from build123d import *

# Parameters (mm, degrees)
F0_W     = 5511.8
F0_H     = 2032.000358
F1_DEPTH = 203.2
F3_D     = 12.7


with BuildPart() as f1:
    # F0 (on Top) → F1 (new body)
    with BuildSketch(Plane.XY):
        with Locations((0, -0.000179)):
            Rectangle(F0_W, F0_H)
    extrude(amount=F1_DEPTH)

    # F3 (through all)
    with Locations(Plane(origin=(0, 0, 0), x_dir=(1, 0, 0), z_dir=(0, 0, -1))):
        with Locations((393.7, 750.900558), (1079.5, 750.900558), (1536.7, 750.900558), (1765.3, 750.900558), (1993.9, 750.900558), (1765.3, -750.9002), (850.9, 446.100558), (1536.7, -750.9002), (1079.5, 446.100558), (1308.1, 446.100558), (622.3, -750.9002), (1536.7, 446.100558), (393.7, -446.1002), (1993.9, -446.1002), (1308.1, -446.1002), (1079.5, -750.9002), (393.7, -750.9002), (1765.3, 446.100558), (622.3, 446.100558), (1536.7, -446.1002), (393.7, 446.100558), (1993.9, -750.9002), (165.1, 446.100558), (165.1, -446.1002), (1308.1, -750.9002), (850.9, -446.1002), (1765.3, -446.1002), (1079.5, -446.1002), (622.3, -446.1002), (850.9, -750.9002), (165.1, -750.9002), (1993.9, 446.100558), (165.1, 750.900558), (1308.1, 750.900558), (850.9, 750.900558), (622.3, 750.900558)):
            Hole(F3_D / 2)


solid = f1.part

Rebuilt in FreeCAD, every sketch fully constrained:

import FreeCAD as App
import Part
import Sketcher
Q = App.Units.Quantity


def add_polygon(sketch, points):
    """Adds a closed chain of lines whose ends are joined by coincident constraints."""
    first, n = sketch.GeometryCount, len(points)
    for a, b in zip(points, points[1:] + points[:1]):
        sketch.addGeometry(Part.LineSegment(App.Vector(*a, 0), App.Vector(*b, 0)), False)
    for i in range(n):
        sketch.addConstraint(Sketcher.Constraint("Coincident", first + i, 2, first + (i + 1) % n, 1))

doc = App.newDocument("Part")
body = doc.addObject("PartDesign::Body", "Body")

sketch1 = body.newObject("Sketcher::SketchObject", "Sketch")
sketch1.AttachmentSupport = (doc.getObject("XY_Plane"), [""])
sketch1.MapMode = "FlatFace"
add_polygon(sketch1, [(-2756, 1016), (-2756, -1016), (2756, -1016), (2756, 1016)])
sketch1.addConstraint([
    Sketcher.Constraint("Vertical", 0),
    Sketcher.Constraint("Horizontal", 1),
    Sketcher.Constraint("Vertical", 2),
    Sketcher.Constraint("Horizontal", 3),
    Sketcher.Constraint("DistanceX", 1, 1, 1, 2, Q("217 in")),
    Sketcher.Constraint("DistanceY", -1, 1, 2, 2, Q("40 in")),
    Sketcher.Constraint("DistanceX", 0, 2, -1, 1, Q("108.5 in")),
    Sketcher.Constraint("DistanceY", 0, 2, 0, 1, 2032.000358),
])
pad1 = body.newObject("PartDesign::Pad", "Pad")
pad1.Profile = sketch1
pad1.Length = Q("8 in")

sketch2 = body.newObject("Sketcher::SketchObject", "Sketch001")
sketch2.AttachmentSupport = (doc.getObject("XY_Plane"), [""])
sketch2.MapMode = "FlatFace"
sketch2.addGeometry([
    Part.Circle(App.Vector(394, -751, 0), App.Vector(0, 0, 1), 6),
    Part.Circle(App.Vector(1080, -751, 0), App.Vector(0, 0, 1), 6),
    Part.Circle(App.Vector(1537, -751, 0), App.Vector(0, 0, 1), 6),
    Part.Circle(App.Vector(1765, -751, 0), App.Vector(0, 0, 1), 6),
    Part.Circle(App.Vector(1994, -751, 0), App.Vector(0, 0, 1), 6),
    Part.Circle(App.Vector(1765, 751, 0), App.Vector(0, 0, 1), 6),
    Part.Circle(App.Vector(851, -446, 0), App.Vector(0, 0, 1), 6),
    Part.Circle(App.Vector(1537, 751, 0), App.Vector(0, 0, 1), 6),
    Part.Circle(App.Vector(1080, -446, 0), App.Vector(0, 0, 1), 6),
    Part.Circle(App.Vector(1308, -446, 0), App.Vector(0, 0, 1), 6),
    Part.Circle(App.Vector(622, 751, 0), App.Vector(0, 0, 1), 6),
    Part.Circle(App.Vector(1537, -446, 0), App.Vector(0, 0, 1), 6),
    Part.Circle(App.Vector(394, 446, 0), App.Vector(0, 0, 1), 6),
    Part.Circle(App.Vector(1994, 446, 0), App.Vector(0, 0, 1), 6),
    Part.Circle(App.Vector(1308, 446, 0), App.Vector(0, 0, 1), 6),
    Part.Circle(App.Vector(1080, 751, 0), App.Vector(0, 0, 1), 6),
    Part.Circle(App.Vector(394, 751, 0), App.Vector(0, 0, 1), 6),
    Part.Circle(App.Vector(1765, -446, 0), App.Vector(0, 0, 1), 6),
    Part.Circle(App.Vector(622, -446, 0), App.Vector(0, 0, 1), 6),
    Part.Circle(App.Vector(1537, 446, 0), App.Vector(0, 0, 1), 6),
    Part.Circle(App.Vector(394, -446, 0), App.Vector(0, 0, 1), 6),
    Part.Circle(App.Vector(1994, 751, 0), App.Vector(0, 0, 1), 6),
    Part.Circle(App.Vector(165, -446, 0), App.Vector(0, 0, 1), 6),
    Part.Circle(App.Vector(165, 446, 0), App.Vector(0, 0, 1), 6),
    Part.Circle(App.Vector(1308, 751, 0), App.Vector(0, 0, 1), 6),
    Part.Circle(App.Vector(851, 446, 0), App.Vector(0, 0, 1), 6),
    Part.Circle(App.Vector(1765, 446, 0), App.Vector(0, 0, 1), 6),
    Part.Circle(App.Vector(1080, 446, 0), App.Vector(0, 0, 1), 6),
    Part.Circle(App.Vector(622, 446, 0), App.Vector(0, 0, 1), 6),
    Part.Circle(App.Vector(851, 751, 0), App.Vector(0, 0, 1), 6),
    Part.Circle(App.Vector(165, 751, 0), App.Vector(0, 0, 1), 6),
    Part.Circle(App.Vector(1994, -446, 0), App.Vector(0, 0, 1), 6),
    Part.Circle(App.Vector(165, -751, 0), App.Vector(0, 0, 1), 6),
    Part.Circle(App.Vector(1308, -751, 0), App.Vector(0, 0, 1), 6),
    Part.Circle(App.Vector(851, -751, 0), App.Vector(0, 0, 1), 6),
    Part.Circle(App.Vector(622, -751, 0), App.Vector(0, 0, 1), 6),
], False)
sketch2.addConstraint([
    Sketcher.Constraint("Equal", 0, 1),
    Sketcher.Constraint("Equal", 1, 2),
    Sketcher.Constraint("Equal", 2, 3),
    Sketcher.Constraint("Equal", 3, 4),
    Sketcher.Constraint("Equal", 4, 5),
    Sketcher.Constraint("Equal", 5, 6),
    Sketcher.Constraint("Equal", 6, 7),
    Sketcher.Constraint("Equal", 7, 8),
    Sketcher.Constraint("Equal", 8, 9),
    Sketcher.Constraint("Equal", 9, 10),
    Sketcher.Constraint("Equal", 10, 11),
    Sketcher.Constraint("Equal", 11, 12),
    Sketcher.Constraint("Equal", 12, 13),
    Sketcher.Constraint("Equal", 13, 14),
    Sketcher.Constraint("Equal", 14, 15),
    Sketcher.Constraint("Equal", 15, 16),
    Sketcher.Constraint("Equal", 16, 17),
    Sketcher.Constraint("Equal", 17, 18),
    Sketcher.Constraint("Equal", 18, 19),
    Sketcher.Constraint("Equal", 19, 20),
    Sketcher.Constraint("Equal", 20, 21),
    Sketcher.Constraint("Equal", 21, 22),
    Sketcher.Constraint("Equal", 22, 23),
    Sketcher.Constraint("Equal", 23, 24),
    Sketcher.Constraint("Equal", 24, 25),
    Sketcher.Constraint("Equal", 25, 26),
    Sketcher.Constraint("Equal", 26, 27),
    Sketcher.Constraint("Equal", 27, 28),
    Sketcher.Constraint("Equal", 28, 29),
    Sketcher.Constraint("Equal", 29, 30),
    Sketcher.Constraint("Equal", 30, 31),
    Sketcher.Constraint("Equal", 31, 32),
    Sketcher.Constraint("Equal", 32, 33),
    Sketcher.Constraint("Equal", 33, 34),
    Sketcher.Constraint("Equal", 34, 35),
    Sketcher.Constraint("Horizontal", 0, 3, 1, 3),
    Sketcher.Constraint("Horizontal", 1, 3, 2, 3),
    Sketcher.Constraint("Horizontal", 2, 3, 3, 3),
    Sketcher.Constraint("Horizontal", 3, 3, 4, 3),
    Sketcher.Constraint("Horizontal", 5, 3, 7, 3),
    Sketcher.Constraint("Horizontal", 6, 3, 8, 3),
    Sketcher.Constraint("Horizontal", 8, 3, 9, 3),
    Sketcher.Constraint("Horizontal", 7, 3, 10, 3),
    Sketcher.Constraint("Horizontal", 9, 3, 11, 3),
    Sketcher.Constraint("Horizontal", 12, 3, 13, 3),
    Sketcher.Constraint("Horizontal", 13, 3, 14, 3),
    Sketcher.Constraint("Horizontal", 10, 3, 15, 3),
    Sketcher.Constraint("Horizontal", 15, 3, 16, 3),
    Sketcher.Constraint("Horizontal", 11, 3, 17, 3),
    Sketcher.Constraint("Horizontal", 17, 3, 18, 3),
    Sketcher.Constraint("Horizontal", 14, 3, 19, 3),
    Sketcher.Constraint("Horizontal", 18, 3, 20, 3),
    Sketcher.Constraint("Horizontal", 16, 3, 21, 3),
    Sketcher.Constraint("Horizontal", 20, 3, 22, 3),
    Sketcher.Constraint("Horizontal", 19, 3, 23, 3),
    Sketcher.Constraint("Horizontal", 21, 3, 24, 3),
    Sketcher.Constraint("Horizontal", 23, 3, 25, 3),
    Sketcher.Constraint("Horizontal", 25, 3, 26, 3),
    Sketcher.Constraint("Horizontal", 26, 3, 27, 3),
    Sketcher.Constraint("Horizontal", 27, 3, 28, 3),
    Sketcher.Constraint("Horizontal", 24, 3, 29, 3),
    Sketcher.Constraint("Horizontal", 29, 3, 30, 3),
    Sketcher.Constraint("Horizontal", 22, 3, 31, 3),
    Sketcher.Constraint("Horizontal", 4, 3, 32, 3),
    Sketcher.Constraint("Horizontal", 32, 3, 33, 3),
    Sketcher.Constraint("Horizontal", 33, 3, 34, 3),
    Sketcher.Constraint("Horizontal", 34, 3, 35, 3),
    Sketcher.Constraint("Vertical", 3, 3, 5, 3),
    Sketcher.Constraint("Vertical", 2, 3, 7, 3),
    Sketcher.Constraint("Vertical", 1, 3, 8, 3),
    Sketcher.Constraint("Vertical", 7, 3, 11, 3),
    Sketcher.Constraint("Vertical", 0, 3, 12, 3),
    Sketcher.Constraint("Vertical", 4, 3, 13, 3),
    Sketcher.Constraint("Vertical", 9, 3, 14, 3),
    Sketcher.Constraint("Vertical", 8, 3, 15, 3),
    Sketcher.Constraint("Vertical", 12, 3, 16, 3),
    Sketcher.Constraint("Vertical", 5, 3, 17, 3),
    Sketcher.Constraint("Vertical", 10, 3, 18, 3),
    Sketcher.Constraint("Vertical", 11, 3, 19, 3),
    Sketcher.Constraint("Vertical", 16, 3, 20, 3),
    Sketcher.Constraint("Vertical", 13, 3, 21, 3),
    Sketcher.Constraint("Vertical", 22, 3, 23, 3),
    Sketcher.Constraint("Vertical", 14, 3, 24, 3),
    Sketcher.Constraint("Vertical", 6, 3, 25, 3),
    Sketcher.Constraint("Vertical", 17, 3, 26, 3),
    Sketcher.Constraint("Vertical", 15, 3, 27, 3),
    Sketcher.Constraint("Vertical", 18, 3, 28, 3),
    Sketcher.Constraint("Vertical", 25, 3, 29, 3),
    Sketcher.Constraint("Vertical", 23, 3, 30, 3),
    Sketcher.Constraint("Vertical", 21, 3, 31, 3),
    Sketcher.Constraint("Vertical", 30, 3, 32, 3),
    Sketcher.Constraint("Vertical", 24, 3, 33, 3),
    Sketcher.Constraint("Vertical", 29, 3, 34, 3),
    Sketcher.Constraint("Vertical", 28, 3, 35, 3),
    Sketcher.Constraint("Diameter", 0, Q("0.5 in")),
    Sketcher.Constraint("DistanceX", 0, 3, 1, 3, Q("27 in")),
    Sketcher.Constraint("DistanceX", 1, 3, 2, 3, Q("18 in")),
    Sketcher.Constraint("DistanceX", 2, 3, 3, 3, Q("9 in")),
    Sketcher.Constraint("DistanceX", 3, 3, 4, 3, Q("9 in")),
    Sketcher.Constraint("DistanceX", 6, 3, 1, 3, Q("9 in")),
    Sketcher.Constraint("DistanceY", 1, 3, 6, 3, Q("12 in")),
    Sketcher.Constraint("DistanceX", 8, 3, 9, 3, Q("9 in")),
    Sketcher.Constraint("DistanceX", 10, 3, 7, 3, Q("36 in")),
    Sketcher.Constraint("DistanceY", 12, 3, 10, 3, Q("12 in")),
    Sketcher.Constraint("DistanceX", 22, 3, 20, 3, Q("9 in")),
    Sketcher.Constraint("DistanceX", -1, 1, 0, 3, Q("15.5 in")),
    Sketcher.Constraint("DistanceY", -1, 1, 5, 3, Q("29.563 in")),
    Sketcher.Constraint("DistanceY", 0, 3, -1, 1, 750.900558),
])
doc.recompute()
hole = body.newObject("PartDesign::Hole", "Hole")
hole.Profile = sketch2
hole.ThreadType = "None"
hole.Diameter = Q("0.5 in")
hole.DepthType = "ThroughAll"
hole.Reversed = True

doc.recompute()
